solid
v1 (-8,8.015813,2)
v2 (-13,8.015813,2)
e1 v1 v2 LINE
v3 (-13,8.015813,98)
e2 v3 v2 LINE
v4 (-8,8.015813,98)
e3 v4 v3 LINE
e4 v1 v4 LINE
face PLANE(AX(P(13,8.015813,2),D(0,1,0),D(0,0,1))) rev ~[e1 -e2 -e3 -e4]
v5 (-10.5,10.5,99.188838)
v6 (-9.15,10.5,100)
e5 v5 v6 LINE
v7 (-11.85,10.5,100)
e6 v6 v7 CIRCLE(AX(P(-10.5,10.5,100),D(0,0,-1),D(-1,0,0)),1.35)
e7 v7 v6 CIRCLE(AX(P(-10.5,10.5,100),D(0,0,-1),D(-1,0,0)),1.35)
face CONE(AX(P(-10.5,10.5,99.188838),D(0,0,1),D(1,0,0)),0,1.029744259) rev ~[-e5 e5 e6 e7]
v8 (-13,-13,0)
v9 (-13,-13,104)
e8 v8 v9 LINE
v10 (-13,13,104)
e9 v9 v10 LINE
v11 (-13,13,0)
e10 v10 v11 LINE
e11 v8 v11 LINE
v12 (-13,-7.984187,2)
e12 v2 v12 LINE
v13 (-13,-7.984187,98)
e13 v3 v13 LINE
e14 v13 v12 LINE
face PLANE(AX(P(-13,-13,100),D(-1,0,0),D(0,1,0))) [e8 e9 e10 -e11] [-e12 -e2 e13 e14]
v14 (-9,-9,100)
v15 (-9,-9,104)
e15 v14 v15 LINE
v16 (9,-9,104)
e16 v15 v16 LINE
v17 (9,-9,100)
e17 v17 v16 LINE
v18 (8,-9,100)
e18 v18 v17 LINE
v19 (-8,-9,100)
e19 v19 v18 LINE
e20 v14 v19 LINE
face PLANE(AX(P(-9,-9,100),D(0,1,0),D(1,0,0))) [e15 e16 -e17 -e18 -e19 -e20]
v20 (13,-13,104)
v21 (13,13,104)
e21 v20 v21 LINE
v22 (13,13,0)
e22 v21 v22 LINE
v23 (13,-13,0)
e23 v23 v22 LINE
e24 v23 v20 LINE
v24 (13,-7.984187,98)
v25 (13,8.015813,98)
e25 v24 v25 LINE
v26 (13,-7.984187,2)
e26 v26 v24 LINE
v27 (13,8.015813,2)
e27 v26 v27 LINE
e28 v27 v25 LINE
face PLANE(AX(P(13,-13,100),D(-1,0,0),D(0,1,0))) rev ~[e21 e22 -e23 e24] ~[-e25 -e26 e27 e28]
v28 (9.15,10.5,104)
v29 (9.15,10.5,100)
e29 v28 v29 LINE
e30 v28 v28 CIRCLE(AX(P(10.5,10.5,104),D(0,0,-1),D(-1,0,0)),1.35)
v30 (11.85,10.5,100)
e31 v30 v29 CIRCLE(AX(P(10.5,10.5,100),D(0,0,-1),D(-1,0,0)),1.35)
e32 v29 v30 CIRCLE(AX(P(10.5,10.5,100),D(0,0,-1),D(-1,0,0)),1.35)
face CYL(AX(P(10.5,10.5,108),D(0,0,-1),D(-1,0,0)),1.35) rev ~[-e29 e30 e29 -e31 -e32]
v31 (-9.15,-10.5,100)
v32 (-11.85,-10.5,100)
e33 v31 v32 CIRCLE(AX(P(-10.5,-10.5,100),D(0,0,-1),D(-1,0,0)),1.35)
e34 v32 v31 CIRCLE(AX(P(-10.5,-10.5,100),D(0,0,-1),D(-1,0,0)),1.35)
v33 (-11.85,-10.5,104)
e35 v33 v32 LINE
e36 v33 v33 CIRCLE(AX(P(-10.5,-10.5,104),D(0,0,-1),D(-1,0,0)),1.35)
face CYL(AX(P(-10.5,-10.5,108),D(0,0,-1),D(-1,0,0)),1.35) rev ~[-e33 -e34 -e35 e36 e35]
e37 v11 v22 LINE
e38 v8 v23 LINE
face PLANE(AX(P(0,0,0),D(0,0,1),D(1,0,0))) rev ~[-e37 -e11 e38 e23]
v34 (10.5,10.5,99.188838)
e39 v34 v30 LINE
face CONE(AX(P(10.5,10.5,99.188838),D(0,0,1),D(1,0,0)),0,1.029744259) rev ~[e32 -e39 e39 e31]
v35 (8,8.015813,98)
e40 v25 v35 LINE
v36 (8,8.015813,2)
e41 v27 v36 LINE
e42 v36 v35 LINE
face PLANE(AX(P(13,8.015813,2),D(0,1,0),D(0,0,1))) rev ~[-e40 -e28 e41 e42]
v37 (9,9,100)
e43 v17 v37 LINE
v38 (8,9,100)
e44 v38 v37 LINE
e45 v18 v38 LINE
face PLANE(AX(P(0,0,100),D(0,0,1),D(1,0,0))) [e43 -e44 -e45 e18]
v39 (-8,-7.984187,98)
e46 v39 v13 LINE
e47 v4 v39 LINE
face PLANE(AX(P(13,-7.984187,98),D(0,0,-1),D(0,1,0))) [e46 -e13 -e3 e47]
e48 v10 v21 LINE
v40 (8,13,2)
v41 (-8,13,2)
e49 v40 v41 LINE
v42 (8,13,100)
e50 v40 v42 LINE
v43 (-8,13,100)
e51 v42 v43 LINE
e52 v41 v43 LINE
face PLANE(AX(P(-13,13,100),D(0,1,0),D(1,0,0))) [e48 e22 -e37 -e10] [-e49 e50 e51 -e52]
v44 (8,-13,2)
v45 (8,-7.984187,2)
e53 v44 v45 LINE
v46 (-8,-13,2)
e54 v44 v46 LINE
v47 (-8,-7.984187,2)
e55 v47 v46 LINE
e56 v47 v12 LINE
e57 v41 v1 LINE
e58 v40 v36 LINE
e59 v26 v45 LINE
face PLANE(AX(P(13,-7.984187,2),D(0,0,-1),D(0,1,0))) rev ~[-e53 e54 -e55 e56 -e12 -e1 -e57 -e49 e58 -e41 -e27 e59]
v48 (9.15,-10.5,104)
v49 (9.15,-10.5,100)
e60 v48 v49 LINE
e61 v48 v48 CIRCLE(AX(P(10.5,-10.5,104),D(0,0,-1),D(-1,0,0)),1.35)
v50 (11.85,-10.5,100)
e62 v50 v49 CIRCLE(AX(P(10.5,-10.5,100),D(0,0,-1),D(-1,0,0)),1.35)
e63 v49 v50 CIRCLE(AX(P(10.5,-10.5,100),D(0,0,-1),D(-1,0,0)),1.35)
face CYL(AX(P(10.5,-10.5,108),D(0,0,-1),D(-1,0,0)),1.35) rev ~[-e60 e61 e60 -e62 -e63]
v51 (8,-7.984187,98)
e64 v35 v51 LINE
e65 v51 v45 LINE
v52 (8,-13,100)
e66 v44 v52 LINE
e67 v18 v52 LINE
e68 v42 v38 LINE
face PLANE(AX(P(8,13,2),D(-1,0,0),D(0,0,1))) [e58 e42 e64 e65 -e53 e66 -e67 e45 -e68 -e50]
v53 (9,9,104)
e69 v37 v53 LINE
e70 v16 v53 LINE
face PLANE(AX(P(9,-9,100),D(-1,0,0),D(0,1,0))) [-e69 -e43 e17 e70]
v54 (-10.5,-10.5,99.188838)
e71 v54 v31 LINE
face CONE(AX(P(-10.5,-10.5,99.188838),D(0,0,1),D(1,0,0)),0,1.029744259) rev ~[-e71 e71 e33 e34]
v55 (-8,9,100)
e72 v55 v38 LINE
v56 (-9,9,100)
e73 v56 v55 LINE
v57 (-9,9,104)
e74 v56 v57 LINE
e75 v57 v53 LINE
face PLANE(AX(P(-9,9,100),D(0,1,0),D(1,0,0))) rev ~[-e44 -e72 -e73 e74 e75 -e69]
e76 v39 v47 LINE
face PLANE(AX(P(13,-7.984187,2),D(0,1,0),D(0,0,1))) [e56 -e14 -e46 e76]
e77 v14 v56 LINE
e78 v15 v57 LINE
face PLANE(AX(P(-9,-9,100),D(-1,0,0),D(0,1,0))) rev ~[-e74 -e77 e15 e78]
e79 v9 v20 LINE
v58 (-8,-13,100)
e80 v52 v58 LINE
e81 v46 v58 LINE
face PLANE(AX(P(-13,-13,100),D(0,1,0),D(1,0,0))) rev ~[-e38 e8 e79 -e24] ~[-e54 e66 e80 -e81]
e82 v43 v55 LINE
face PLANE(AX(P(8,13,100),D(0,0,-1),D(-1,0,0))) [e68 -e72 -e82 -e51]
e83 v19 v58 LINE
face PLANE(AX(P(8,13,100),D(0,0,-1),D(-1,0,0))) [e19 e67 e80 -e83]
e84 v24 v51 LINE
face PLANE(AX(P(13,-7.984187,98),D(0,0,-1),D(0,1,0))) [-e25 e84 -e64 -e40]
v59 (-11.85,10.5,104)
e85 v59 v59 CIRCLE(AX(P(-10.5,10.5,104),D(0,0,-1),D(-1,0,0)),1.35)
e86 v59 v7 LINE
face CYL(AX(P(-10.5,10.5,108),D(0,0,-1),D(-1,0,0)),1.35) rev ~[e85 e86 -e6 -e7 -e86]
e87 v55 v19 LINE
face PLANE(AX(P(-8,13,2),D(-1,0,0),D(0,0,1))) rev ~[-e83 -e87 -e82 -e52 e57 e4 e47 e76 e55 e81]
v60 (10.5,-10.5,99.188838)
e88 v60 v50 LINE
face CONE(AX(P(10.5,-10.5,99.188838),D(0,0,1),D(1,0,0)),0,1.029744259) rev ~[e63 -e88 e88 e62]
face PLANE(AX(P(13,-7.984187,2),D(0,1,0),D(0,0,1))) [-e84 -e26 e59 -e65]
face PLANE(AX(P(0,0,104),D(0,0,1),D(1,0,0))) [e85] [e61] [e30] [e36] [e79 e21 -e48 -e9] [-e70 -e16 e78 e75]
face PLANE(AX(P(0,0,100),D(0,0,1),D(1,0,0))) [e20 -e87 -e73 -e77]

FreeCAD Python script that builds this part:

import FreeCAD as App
import Part
import Sketcher
from FreeCAD import Vector
Q = App.Units.Quantity

doc = App.newDocument("Part")
body = doc.addObject("PartDesign::Body", "Body")

sketch1 = body.newObject("Sketcher::SketchObject", "Sketch")
sketch1.AttachmentSupport = (doc.getObject("XY_Plane"), [""])
sketch1.MapMode = "FlatFace"
sketch1.addGeometry(Part.LineSegment(Vector(-13, 13, 0), Vector(-13, -13, 0)), False)
sketch1.addGeometry(Part.LineSegment(Vector(-13, -13, 0), Vector(13, -13, 0)), False)
sketch1.addGeometry(Part.LineSegment(Vector(13, -13, 0), Vector(13, 13, 0)), False)
sketch1.addGeometry(Part.LineSegment(Vector(13, 13, 0), Vector(-13, 13, 0)), False)
sketch1.addConstraint(Sketcher.Constraint("Coincident", 0, 2, 1, 1))
sketch1.addConstraint(Sketcher.Constraint("Coincident", 1, 2, 2, 1))
sketch1.addConstraint(Sketcher.Constraint("Coincident", 2, 2, 3, 1))
sketch1.addConstraint(Sketcher.Constraint("Coincident", 3, 2, 0, 1))
sketch1.addConstraint(Sketcher.Constraint("Vertical", 0))
sketch1.addConstraint(Sketcher.Constraint("Horizontal", 1))
sketch1.addConstraint(Sketcher.Constraint("Vertical", 2))
sketch1.addConstraint(Sketcher.Constraint("Horizontal", 3))
sketch1.addConstraint(Sketcher.Constraint("Symmetric", 0, 2, 2, 2, -1, 1))
sketch1.addConstraint(Sketcher.Constraint("Equal", 3, 0))
sketch1.addConstraint(Sketcher.Constraint("DistanceX", 1, 1, 1, 2, Q("26 mm")))
pad1 = body.newObject("PartDesign::Pad", "Pad")
pad1.Profile = sketch1
pad1.Length = 2

sketch2 = body.newObject("Sketcher::SketchObject", "Sketch001")
sketch2.AttachmentSupport = (doc.getObject("XY_Plane"), [""])
sketch2.MapMode = "FlatFace"
sketch2.addGeometry(Part.LineSegment(Vector(-13, 13, 0), Vector(-13, -13, 0)), False)
sketch2.addGeometry(Part.LineSegment(Vector(-13, -13, 0), Vector(13, -13, 0)), False)
sketch2.addGeometry(Part.LineSegment(Vector(13, -13, 0), Vector(13, 13, 0)), False)
sketch2.addGeometry(Part.LineSegment(Vector(13, 13, 0), Vector(-13, 13, 0)), False)
sketch2.addGeometry(Part.LineSegment(Vector(8, -8, 0), Vector(-8, -8, 0)), False)
sketch2.addGeometry(Part.LineSegment(Vector(-8, -8, 0), Vector(-8, 8, 0)), False)
sketch2.addGeometry(Part.LineSegment(Vector(-8, 8, 0), Vector(8, 8, 0)), False)
sketch2.addGeometry(Part.LineSegment(Vector(8, 8, 0), Vector(8, -8, 0)), False)
sketch2.addConstraint(Sketcher.Constraint("Coincident", 0, 2, 1, 1))
sketch2.addConstraint(Sketcher.Constraint("Coincident", 1, 2, 2, 1))
sketch2.addConstraint(Sketcher.Constraint("Coincident", 2, 2, 3, 1))
sketch2.addConstraint(Sketcher.Constraint("Coincident", 3, 2, 0, 1))
sketch2.addConstraint(Sketcher.Constraint("Coincident", 4, 2, 5, 1))
sketch2.addConstraint(Sketcher.Constraint("Coincident", 5, 2, 6, 1))
sketch2.addConstraint(Sketcher.Constraint("Coincident", 6, 2, 7, 1))
sketch2.addConstraint(Sketcher.Constraint("Coincident", 7, 2, 4, 1))
sketch2.addConstraint(Sketcher.Constraint("Vertical", 0))
sketch2.addConstraint(Sketcher.Constraint("Horizontal", 1))
sketch2.addConstraint(Sketcher.Constraint("Vertical", 2))
sketch2.addConstraint(Sketcher.Constraint("Horizontal", 3))
sketch2.addConstraint(Sketcher.Constraint("Horizontal", 4))
sketch2.addConstraint(Sketcher.Constraint("Vertical", 5))
sketch2.addConstraint(Sketcher.Constraint("Horizontal", 6))
sketch2.addConstraint(Sketcher.Constraint("Vertical", 7))
sketch2.addConstraint(Sketcher.Constraint("Symmetric", 0, 2, 2, 2, -1, 1))
sketch2.addConstraint(Sketcher.Constraint("Symmetric", 4, 2, 6, 2, -1, 1))
sketch2.addConstraint(Sketcher.Constraint("Equal", 3, 0))
sketch2.addConstraint(Sketcher.Constraint("Equal", 6, 5))
sketch2.addConstraint(Sketcher.Constraint("DistanceX", 1, 1, 1, 2, Q("26 mm")))
sketch2.addConstraint(Sketcher.Constraint("DistanceX", 4, 2, 4, 1, Q("16 mm")))
pad2 = body.newObject("PartDesign::Pad", "Pad001")
pad2.Profile = sketch2
pad2.Length = 100

sketch3 = body.newObject("Sketcher::SketchObject", "Sketch002")
sketch3.AttachmentSupport = (doc.getObject("XY_Plane"), [""])
sketch3.MapMode = "FlatFace"
sketch3.AttachmentOffset = App.Placement(Vector(0, 0, 100), App.Rotation())
sketch3.addGeometry(Part.LineSegment(Vector(-13, 13, 0), Vector(-13, -13, 0)), False)
sketch3.addGeometry(Part.LineSegment(Vector(-13, -13, 0), Vector(13, -13, 0)), False)
sketch3.addGeometry(Part.LineSegment(Vector(13, -13, 0), Vector(13, 13, 0)), False)
sketch3.addGeometry(Part.LineSegment(Vector(13, 13, 0), Vector(-13, 13, 0)), False)
sketch3.addGeometry(Part.LineSegment(Vector(9, -9, 0), Vector(-9, -9, 0)), False)
sketch3.addGeometry(Part.LineSegment(Vector(-9, -9, 0), Vector(-9, 9, 0)), False)
sketch3.addGeometry(Part.LineSegment(Vector(-9, 9, 0), Vector(9, 9, 0)), False)
sketch3.addGeometry(Part.LineSegment(Vector(9, 9, 0), Vector(9, -9, 0)), False)
sketch3.addConstraint(Sketcher.Constraint("Coincident", 0, 2, 1, 1))
sketch3.addConstraint(Sketcher.Constraint("Coincident", 1, 2, 2, 1))
sketch3.addConstraint(Sketcher.Constraint("Coincident", 2, 2, 3, 1))
sketch3.addConstraint(Sketcher.Constraint("Coincident", 3, 2, 0, 1))
sketch3.addConstraint(Sketcher.Constraint("Coincident", 4, 2, 5, 1))
sketch3.addConstraint(Sketcher.Constraint("Coincident", 5, 2, 6, 1))
sketch3.addConstraint(Sketcher.Constraint("Coincident", 6, 2, 7, 1))
sketch3.addConstraint(Sketcher.Constraint("Coincident", 7, 2, 4, 1))
sketch3.addConstraint(Sketcher.Constraint("Vertical", 0))
sketch3.addConstraint(Sketcher.Constraint("Horizontal", 1))
sketch3.addConstraint(Sketcher.Constraint("Vertical", 2))
sketch3.addConstraint(Sketcher.Constraint("Horizontal", 3))
sketch3.addConstraint(Sketcher.Constraint("Horizontal", 4))
sketch3.addConstraint(Sketcher.Constraint("Vertical", 5))
sketch3.addConstraint(Sketcher.Constraint("Horizontal", 6))
sketch3.addConstraint(Sketcher.Constraint("Vertical", 7))
sketch3.addConstraint(Sketcher.Constraint("Symmetric", 0, 2, 2, 2, -1, 1))
sketch3.addConstraint(Sketcher.Constraint("Symmetric", 4, 2, 6, 2, -1, 1))
sketch3.addConstraint(Sketcher.Constraint("Equal", 3, 0))
sketch3.addConstraint(Sketcher.Constraint("Equal", 6, 5))
sketch3.addConstraint(Sketcher.Constraint("DistanceX", 1, 1, 1, 2, Q("26 mm")))
sketch3.addConstraint(Sketcher.Constraint("DistanceX", 4, 2, 4, 1, Q("18 mm")))
pad3 = body.newObject("PartDesign::Pad", "Pad002")
pad3.Profile = sketch3
pad3.Length = 4

sketch4 = body.newObject("Sketcher::SketchObject", "Sketch003")
sketch4.AttachmentSupport = (doc.getObject("XY_Plane"), [""])
sketch4.MapMode = "FlatFace"
sketch4.AttachmentOffset = App.Placement(Vector(0, 0, 104), App.Rotation())
sketch4.addGeometry(Part.Circle(Vector(-10.5, 10.5, 0), Vector(0, 0, 1), 1.4), False)
sketch4.addGeometry(Part.Circle(Vector(10.5, 10.5, 0), Vector(0, 0, 1), 1.4), False)
sketch4.addGeometry(Part.Circle(Vector(-10.5, -10.5, 0), Vector(0, 0, 1), 1.4), False)
sketch4.addGeometry(Part.Circle(Vector(10.5, -10.5, 0), Vector(0, 0, 1), 1.4), False)
sketch4.addConstraint(Sketcher.Constraint("Equal", 0, 1))
sketch4.addConstraint(Sketcher.Constraint("Equal", 1, 2))
sketch4.addConstraint(Sketcher.Constraint("Equal", 2, 3))
sketch4.addConstraint(Sketcher.Constraint("Symmetric", 1, 3, 2, 3, -1, 1))
sketch4.addConstraint(Sketcher.Constraint("Symmetric", 0, 3, 3, 3, -1, 1))
sketch4.addConstraint(Sketcher.Constraint("Symmetric", 0, 3, 1, 3, -2))
sketch4.addConstraint(Sketcher.Constraint("Diameter", 0, Q("2.7 mm")))
sketch4.addConstraint(Sketcher.Constraint("DistanceX", 0, 3, 1, 3, Q("21 mm")))
sketch4.addConstraint(Sketcher.Constraint("DistanceY", 2, 3, 0, 3, Q("21 mm")))
doc.recompute()
hole = body.newObject("PartDesign::Hole", "Hole")
hole.Profile = sketch4
hole.ThreadType = "None"
hole.Diameter = 2.7
hole.DepthType = "Dimension"
hole.Depth = 4
hole.DrillPoint = "Angled"
hole.DrillPointAngle = 118

sketch5 = body.newObject("Sketcher::SketchObject", "Sketch004")
sketch5.AttachmentSupport = (doc.getObject("YZ_Plane"), [""])
sketch5.MapMode = "FlatFace"
sketch5.AttachmentOffset = App.Placement(Vector(0, 0, 13), App.Rotation())
sketch5.addGeometry(Part.LineSegment(Vector(-8, 98, 0), Vector(-8, 2, 0)), False)
sketch5.addGeometry(Part.LineSegment(Vector(-8, 2, 0), Vector(8, 2, 0)), False)
sketch5.addGeometry(Part.LineSegment(Vector(8, 2, 0), Vector(8, 98, 0)), False)
sketch5.addGeometry(Part.LineSegment(Vector(8, 98, 0), Vector(-8, 98, 0)), False)
sketch5.addConstraint(Sketcher.Constraint("Coincident", 0, 2, 1, 1))
sketch5.addConstraint(Sketcher.Constraint("Coincident", 1, 2, 2, 1))
sketch5.addConstraint(Sketcher.Constraint("Coincident", 2, 2, 3, 1))
sketch5.addConstraint(Sketcher.Constraint("Coincident", 3, 2, 0, 1))
sketch5.addConstraint(Sketcher.Constraint("Vertical", 0))
sketch5.addConstraint(Sketcher.Constraint("Horizontal", 1))
sketch5.addConstraint(Sketcher.Constraint("Vertical", 2))
sketch5.addConstraint(Sketcher.Constraint("Horizontal", 3))
sketch5.addConstraint(Sketcher.Constraint("DistanceX", 1, 1, 1, 2, Q("16 mm")))
sketch5.addConstraint(Sketcher.Constraint("DistanceY", 0, 2, 0, 1, Q("96 mm")))
sketch5.addConstraint(Sketcher.Constraint("DistanceY", -1, 1, 0, 2, Q("2 mm")))
sketch5.addConstraint(Sketcher.Constraint("DistanceX", 0, 2, -1, 1, Q("7.984187 mm")))
pocket1 = body.newObject("PartDesign::Pocket", "Pocket")
pocket1.Profile = sketch5
pocket1.Type = "ThroughAll"

sketch6 = body.newObject("Sketcher::SketchObject", "Sketch005")
sketch6.AttachmentSupport = (doc.getObject("XZ_Plane"), [""])
sketch6.MapMode = "FlatFace"
sketch6.AttachmentOffset = App.Placement(Vector(0, 0, -13), App.Rotation())
sketch6.addGeometry(Part.LineSegment(Vector(8, 100, 0), Vector(8, 2, 0)), False)
sketch6.addGeometry(Part.LineSegment(Vector(8, 2, 0), Vector(-8, 2, 0)), False)
sketch6.addGeometry(Part.LineSegment(Vector(-8, 2, 0), Vector(-8, 100, 0)), False)
sketch6.addGeometry(Part.LineSegment(Vector(-8, 100, 0), Vector(8, 100, 0)), False)
sketch6.addConstraint(Sketcher.Constraint("Coincident", 0, 2, 1, 1))
sketch6.addConstraint(Sketcher.Constraint("Coincident", 1, 2, 2, 1))
sketch6.addConstraint(Sketcher.Constraint("Coincident", 2, 2, 3, 1))
sketch6.addConstraint(Sketcher.Constraint("Coincident", 3, 2, 0, 1))
sketch6.addConstraint(Sketcher.Constraint("Vertical", 0))
sketch6.addConstraint(Sketcher.Constraint("Horizontal", 1))
sketch6.addConstraint(Sketcher.Constraint("Vertical", 2))
sketch6.addConstraint(Sketcher.Constraint("Horizontal", 3))
sketch6.addConstraint(Sketcher.Constraint("DistanceX", 1, 2, 1, 1, Q("16 mm")))
sketch6.addConstraint(Sketcher.Constraint("DistanceY", 0, 2, 0, 1, Q("98 mm")))
sketch6.addConstraint(Sketcher.Constraint("DistanceX", -1, 1, 0, 2, Q("8 mm")))
sketch6.addConstraint(Sketcher.Constraint("DistanceY", -1, 1, 0, 2, Q("2 mm")))
pocket2 = body.newObject("PartDesign::Pocket", "Pocket001")
pocket2.Profile = sketch6
pocket2.Type = "ThroughAll"
pocket2.Reversed = True

doc.recompute()
